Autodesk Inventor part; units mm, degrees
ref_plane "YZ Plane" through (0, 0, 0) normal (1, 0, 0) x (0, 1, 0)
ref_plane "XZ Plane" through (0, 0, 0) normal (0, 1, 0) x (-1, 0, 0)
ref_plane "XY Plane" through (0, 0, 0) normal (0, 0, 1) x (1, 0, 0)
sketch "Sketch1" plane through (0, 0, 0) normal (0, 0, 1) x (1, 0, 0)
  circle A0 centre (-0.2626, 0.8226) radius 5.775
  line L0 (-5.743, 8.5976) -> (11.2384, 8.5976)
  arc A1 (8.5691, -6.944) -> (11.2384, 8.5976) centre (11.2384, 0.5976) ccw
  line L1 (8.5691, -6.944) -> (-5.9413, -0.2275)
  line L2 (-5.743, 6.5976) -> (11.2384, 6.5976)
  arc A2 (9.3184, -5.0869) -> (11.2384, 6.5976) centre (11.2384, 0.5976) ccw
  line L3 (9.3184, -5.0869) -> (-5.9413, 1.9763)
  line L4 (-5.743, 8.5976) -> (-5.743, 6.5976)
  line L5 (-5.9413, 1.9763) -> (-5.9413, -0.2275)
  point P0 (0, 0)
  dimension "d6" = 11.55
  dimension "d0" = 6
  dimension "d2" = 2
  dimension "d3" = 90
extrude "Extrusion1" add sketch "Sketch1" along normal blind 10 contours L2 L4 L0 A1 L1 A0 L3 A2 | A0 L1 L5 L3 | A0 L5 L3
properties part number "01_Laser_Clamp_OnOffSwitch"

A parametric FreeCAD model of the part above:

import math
import FreeCAD as App
import Part
import Sketcher

V = App.Vector

doc = App.newDocument("Part")
params = doc.addObject("Spreadsheet::Sheet", "Params")
for row, (alias, value) in enumerate([
    ("sketch1_radius", "6 mm"),
    ("sketch1_height", "2 mm"),
    ("sketch1_width", "1.92 mm"),
    ("pad1_length", "10 mm"),
], start=1):
    params.set(f"A{row}", alias)
    params.set(f"B{row}", "=" + value)
    params.setAlias(f"B{row}", alias)

body = doc.addObject("PartDesign::Body", "Body")

sketch1 = doc.addObject("Sketcher::SketchObject", "Sketch")
body.addObject(sketch1)
sketch1.AttachmentSupport = (doc.XY_Plane, [""])
sketch1.MapMode = "FlatFace"
sketch1.addGeometry([
    Part.LineSegment(V(-5.743, 6.5976, 0), V(11.2384, 6.5976, 0)),
    Part.ArcOfCircle(Part.Circle(V(11.2384, 0.5976, 0), V(0, 0, 1), 5.999995), math.radians(-108.662941), math.radians(90)),
    Part.LineSegment(V(9.3184, -5.0869, 0), V(-5.9413, 1.9763, 0)),
    Part.LineSegment(V(-5.9413, 1.9763, 0), V(-5.9413, -0.2275, 0)),
    Part.LineSegment(V(-5.9413, -0.2275, 0), V(8.5691, -6.944, 0)),
    Part.ArcOfCircle(Part.Circle(V(11.2384, 0.5976, 0), V(0, 0, 1), 8.000056), math.radians(-109.491084), math.radians(90)),
    Part.LineSegment(V(11.2384, 8.5976, 0), V(-5.743, 8.5976, 0)),
    Part.LineSegment(V(-5.743, 8.5976, 0), V(-5.743, 6.5976, 0)),
], False)
sketch1.addConstraint([
    Sketcher.Constraint("Tangent", 0, 2, 1, 2),
    Sketcher.Constraint("Coincident", 1, 1, 2, 1),
    Sketcher.Constraint("Coincident", 2, 2, 3, 1),
    Sketcher.Constraint("Coincident", 3, 2, 4, 1),
    Sketcher.Constraint("Coincident", 4, 2, 5, 1),
    Sketcher.Constraint("Tangent", 5, 2, 6, 1),
    Sketcher.Constraint("Coincident", 6, 2, 7, 1),
    Sketcher.Constraint("Coincident", 7, 2, 0, 1),
    Sketcher.Constraint("Horizontal", 0),
    Sketcher.Constraint("Vertical", 3),
    Sketcher.Constraint("Horizontal", 6),
    Sketcher.Constraint("Vertical", 7),
    Sketcher.Constraint("Coincident", 5, 3, 1, 3),
    Sketcher.Constraint("Parallel", 2, 4),
    Sketcher.Constraint("Radius", 1, 6.0),
    Sketcher.Constraint("DistanceY", 7, 2, 7, 1, 2.0),
    Sketcher.Constraint("DistanceX", 1, 1, 1, 3, 1.92),
    Sketcher.Constraint("Distance", 2, 16.815),
    Sketcher.Constraint("DistanceX", 0, 1, 0, 2, 16.9814),
    Sketcher.Constraint("DistanceY", 3, 2, 3, 1, 2.2038),
    Sketcher.Constraint("DistanceY", 1, 1, -1, 1, 5.087),
    Sketcher.Constraint("DistanceX", -1, 1, 4, 2, 8.569),
    Sketcher.Constraint("DistanceY", 4, 2, -1, 1, 6.944),
])
sketch1.setExpression("Constraints[14]", "Params.sketch1_radius")
sketch1.setExpression("Constraints[15]", "Params.sketch1_height")
sketch1.setExpression("Constraints[16]", "Params.sketch1_width")
pad1 = doc.addObject("PartDesign::Pad", "Pad")
body.addObject(pad1)
pad1.Profile = sketch1
pad1.setExpression("Length", "Params.pad1_length")

doc.recompute()
